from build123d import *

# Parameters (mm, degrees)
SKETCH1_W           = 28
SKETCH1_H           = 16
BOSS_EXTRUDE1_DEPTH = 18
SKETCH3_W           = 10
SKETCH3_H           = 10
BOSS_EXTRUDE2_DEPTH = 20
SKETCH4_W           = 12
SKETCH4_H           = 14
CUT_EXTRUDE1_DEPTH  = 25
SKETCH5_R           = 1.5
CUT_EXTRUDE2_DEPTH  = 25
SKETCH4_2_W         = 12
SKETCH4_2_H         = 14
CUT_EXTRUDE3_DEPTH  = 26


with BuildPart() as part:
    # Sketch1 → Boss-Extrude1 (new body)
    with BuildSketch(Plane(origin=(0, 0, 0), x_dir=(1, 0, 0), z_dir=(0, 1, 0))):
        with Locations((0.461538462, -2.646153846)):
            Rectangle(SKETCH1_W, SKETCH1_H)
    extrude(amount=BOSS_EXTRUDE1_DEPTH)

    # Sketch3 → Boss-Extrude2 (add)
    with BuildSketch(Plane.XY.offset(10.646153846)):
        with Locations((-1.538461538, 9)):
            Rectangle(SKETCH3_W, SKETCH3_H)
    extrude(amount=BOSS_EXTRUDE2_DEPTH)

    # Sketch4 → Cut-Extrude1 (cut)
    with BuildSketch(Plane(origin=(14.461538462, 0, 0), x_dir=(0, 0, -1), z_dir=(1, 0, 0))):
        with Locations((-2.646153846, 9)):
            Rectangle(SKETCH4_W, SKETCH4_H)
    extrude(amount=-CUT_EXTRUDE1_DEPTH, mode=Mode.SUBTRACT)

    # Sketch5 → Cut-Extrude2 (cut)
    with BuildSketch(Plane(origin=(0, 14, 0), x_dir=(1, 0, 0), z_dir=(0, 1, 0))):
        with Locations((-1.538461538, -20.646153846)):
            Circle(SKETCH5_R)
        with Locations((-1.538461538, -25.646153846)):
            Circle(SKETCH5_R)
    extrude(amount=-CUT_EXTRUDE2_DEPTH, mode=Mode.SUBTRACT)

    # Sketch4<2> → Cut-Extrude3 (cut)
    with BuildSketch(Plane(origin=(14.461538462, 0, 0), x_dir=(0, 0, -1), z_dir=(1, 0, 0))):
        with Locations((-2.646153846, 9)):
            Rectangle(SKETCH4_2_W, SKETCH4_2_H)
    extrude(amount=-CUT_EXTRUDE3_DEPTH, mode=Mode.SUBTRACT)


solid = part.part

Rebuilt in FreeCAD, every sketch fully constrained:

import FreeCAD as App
import Part
import Sketcher
Q = App.Units.Quantity


def add_polygon(sketch, points):
    """Adds a closed chain of lines whose ends are joined by coincident constraints."""
    first, n = sketch.GeometryCount, len(points)
    for a, b in zip(points, points[1:] + points[:1]):
        sketch.addGeometry(Part.LineSegment(App.Vector(*a, 0), App.Vector(*b, 0)), False)
    for i in range(n):
        sketch.addConstraint(Sketcher.Constraint("Coincident", first + i, 2, first + (i + 1) % n, 1))

doc = App.newDocument("Part")
body = doc.addObject("PartDesign::Body", "Body")

# Sketch on XZ plane
sketch1 = body.newObject("Sketcher::SketchObject", "Sketch")
sketch1.AttachmentSupport = (doc.getObject("XZ_Plane"), [""])
sketch1.MapMode = "FlatFace"
add_polygon(sketch1, [(-13.538462, -5.353846), (-13.538462, 10.646154), (14.461538, 10.646154), (14.461538, -5.353846)])  # lines 0-3
sketch1.addConstraint([
    Sketcher.Constraint("Vertical", 0),
    Sketcher.Constraint("Horizontal", 1),
    Sketcher.Constraint("Vertical", 2),
    Sketcher.Constraint("Horizontal", 3),
    Sketcher.Constraint("DistanceX", 1, 1, 1, 2, Q("28 mm")),
    Sketcher.Constraint("DistanceY", 0, 1, 0, 2, Q("16 mm")),
    Sketcher.Constraint("DistanceX", 0, 2, -1, 1, Q("13.538462 mm")),
    Sketcher.Constraint("DistanceY", -1, 1, 0, 2, Q("10.646154 mm")),
])
pad1 = body.newObject("PartDesign::Pad", "Pad")
pad1.Profile = sketch1
pad1.Length = 18
pad1.Reversed = True

# Sketch on XY plane
sketch2 = body.newObject("Sketcher::SketchObject", "Sketch001")
sketch2.AttachmentSupport = (doc.getObject("XY_Plane"), [""])
sketch2.MapMode = "FlatFace"
sketch2.AttachmentOffset = App.Placement(App.Vector(0, 0, 10.646154), App.Rotation())
add_polygon(sketch2, [(-6.538462, 14), (-6.538462, 4), (3.461538, 4), (3.461538, 14)])  # lines 0-3
sketch2.addConstraint([
    Sketcher.Constraint("Vertical", 0),
    Sketcher.Constraint("Horizontal", 1),
    Sketcher.Constraint("Vertical", 2),
    Sketcher.Constraint("Horizontal", 3),
    Sketcher.Constraint("Equal", 3, 0),
    Sketcher.Constraint("DistanceX", 1, 1, 1, 2, Q("10 mm")),
    Sketcher.Constraint("DistanceY", -1, 1, 0, 2, Q("4 mm")),
    Sketcher.Constraint("DistanceX", 0, 2, -1, 1, Q("6.538462 mm")),
])
pad2 = body.newObject("PartDesign::Pad", "Pad001")
pad2.Profile = sketch2
pad2.Length = 20

# Sketch on YZ plane
sketch3 = body.newObject("Sketcher::SketchObject", "Sketch002")
sketch3.AttachmentSupport = (doc.getObject("YZ_Plane"), [""])
sketch3.MapMode = "FlatFace"
sketch3.AttachmentOffset = App.Placement(App.Vector(0, 0, 14.461538), App.Rotation())
add_polygon(sketch3, [(16, 8.646154), (2, 8.646154), (2, -3.353846), (16, -3.353846)])  # lines 0-3
sketch3.addConstraint([
    Sketcher.Constraint("Horizontal", 0),
    Sketcher.Constraint("Vertical", 1),
    Sketcher.Constraint("Horizontal", 2),
    Sketcher.Constraint("Vertical", 3),
    Sketcher.Constraint("DistanceX", 0, 2, 0, 1, Q("14 mm")),
    Sketcher.Constraint("DistanceY", 1, 2, 1, 1, Q("12 mm")),
    Sketcher.Constraint("DistanceX", -1, 1, 0, 2, Q("2 mm")),
    Sketcher.Constraint("DistanceY", -1, 1, 0, 2, Q("8.646154 mm")),
])
pocket1 = body.newObject("PartDesign::Pocket", "Pocket")
pocket1.Profile = sketch3
pocket1.Length = 25

# Sketch on XZ plane
sketch4 = body.newObject("Sketcher::SketchObject", "Sketch003")
sketch4.AttachmentSupport = (doc.getObject("XZ_Plane"), [""])
sketch4.MapMode = "FlatFace"
sketch4.AttachmentOffset = App.Placement(App.Vector(0, 0, -14), App.Rotation())
sketch4.addGeometry([
    Part.Circle(App.Vector(-1.538462, 20.646154, 0), App.Vector(0, 0, 1), 1.5),
    Part.Circle(App.Vector(-1.538462, 25.646154, 0), App.Vector(0, 0, 1), 1.5),
], False)
sketch4.addConstraint([
    Sketcher.Constraint("Equal", 0, 1),
    Sketcher.Constraint("Vertical", 0, 3, 1, 3),
    Sketcher.Constraint("Diameter", 0, Q("3 mm")),
    Sketcher.Constraint("DistanceY", 0, 3, 1, 3, Q("5 mm")),
    Sketcher.Constraint("DistanceX", 0, 3, -1, 1, Q("1.538462 mm")),
    Sketcher.Constraint("DistanceY", -1, 1, 0, 3, Q("20.646154 mm")),
])
pocket2 = body.newObject("PartDesign::Pocket", "Pocket001")
pocket2.Profile = sketch4
pocket2.Length = 25
pocket2.Reversed = True

# Sketch on YZ plane
sketch5 = body.newObject("Sketcher::SketchObject", "Sketch004")
sketch5.AttachmentSupport = (doc.getObject("YZ_Plane"), [""])
sketch5.MapMode = "FlatFace"
sketch5.AttachmentOffset = App.Placement(App.Vector(0, 0, 14.461538), App.Rotation())
add_polygon(sketch5, [(16, 8.646154), (2, 8.646154), (2, -3.353846), (16, -3.353846)])  # lines 0-3
sketch5.addConstraint([
    Sketcher.Constraint("Horizontal", 0),
    Sketcher.Constraint("Vertical", 1),
    Sketcher.Constraint("Horizontal", 2),
    Sketcher.Constraint("Vertical", 3),
    Sketcher.Constraint("DistanceX", 0, 2, 0, 1, Q("14 mm")),
    Sketcher.Constraint("DistanceY", 1, 2, 1, 1, Q("12 mm")),
    Sketcher.Constraint("DistanceX", -1, 1, 0, 2, Q("2 mm")),
    Sketcher.Constraint("DistanceY", -1, 1, 0, 2, Q("8.646154 mm")),
])
pocket3 = body.newObject("PartDesign::Pocket", "Pocket002")
pocket3.Profile = sketch5
pocket3.Length = 26

doc.recompute()
